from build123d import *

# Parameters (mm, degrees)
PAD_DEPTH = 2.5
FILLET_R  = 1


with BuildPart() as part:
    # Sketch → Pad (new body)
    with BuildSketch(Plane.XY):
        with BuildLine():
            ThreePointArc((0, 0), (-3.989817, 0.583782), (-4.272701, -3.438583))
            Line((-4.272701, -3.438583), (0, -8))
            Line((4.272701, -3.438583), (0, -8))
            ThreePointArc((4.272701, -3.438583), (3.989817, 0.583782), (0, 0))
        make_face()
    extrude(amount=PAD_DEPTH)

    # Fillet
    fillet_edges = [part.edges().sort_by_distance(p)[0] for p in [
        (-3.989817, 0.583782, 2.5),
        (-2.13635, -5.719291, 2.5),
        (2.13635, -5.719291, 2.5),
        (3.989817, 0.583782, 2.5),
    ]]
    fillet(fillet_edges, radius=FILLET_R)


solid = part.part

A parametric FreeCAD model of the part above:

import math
import FreeCAD as App
import Part
import Sketcher


def edges_at(feature, points):
    """Names of the edges that pass closest to the given points."""
    edges = feature.Shape.Edges
    near = lambda p: min(range(len(edges)), key=lambda i: edges[i].distToShape(Part.Vertex(*p))[0])
    return sorted({f"Edge{near(p) + 1}" for p in points})

doc = App.newDocument("Part")
body = doc.addObject("PartDesign::Body", "Body")

sketch1 = doc.addObject("Sketcher::SketchObject", "Sketch")
body.addObject(sketch1)
sketch1.AttachmentSupport = (doc.XY_Plane, [""])
sketch1.MapMode = "FlatFace"
sketch1.addGeometry(Part.ArcOfCircle(Part.Circle(App.Vector(-2.3, -1.6, 0), App.Vector(0, 0, 1), 2.8), math.radians(35), math.radians(223)), False)
sketch1.addGeometry(Part.LineSegment(App.Vector(-4.3, -3.4, 0), App.Vector(0, -8, 0)), False)
sketch1.addGeometry(Part.LineSegment(App.Vector(0, -8, 0), App.Vector(4.3, -3.4, 0)), False)
sketch1.addGeometry(Part.ArcOfCircle(Part.Circle(App.Vector(2.3, -1.6, 0), App.Vector(0, 0, 1), 2.8), math.radians(-43), math.radians(145)), False)
sketch1.addConstraint(Sketcher.Constraint("Coincident", 0, 2, 1, 1))
sketch1.addConstraint(Sketcher.Constraint("Coincident", 1, 2, 2, 1))
sketch1.addConstraint(Sketcher.Constraint("Coincident", 2, 2, 3, 1))
sketch1.addConstraint(Sketcher.Constraint("Coincident", 3, 2, 0, 1))
sketch1.addConstraint(Sketcher.Constraint("Coincident", 3, 2, -1, 1))
sketch1.addConstraint(Sketcher.Constraint("Equal", 0, 3))
sketch1.addConstraint(Sketcher.Constraint("Symmetric", 0, 2, 2, 2, -2))
sketch1.addConstraint(Sketcher.Constraint("PointOnObject", 1, 2, -2))
sketch1.addConstraint(Sketcher.Constraint("Radius", 0, 2.75))
sketch1.addConstraint(Sketcher.Constraint("DistanceY", 1, 2, -1, 1, 8.0))
sketch1.addConstraint(Sketcher.Constraint("Distance", 1, 6.25))
sketch1.addConstraint(Sketcher.Constraint("DistanceX", 0, 2, -1, 1, 4.272701))
pad1 = doc.addObject("PartDesign::Pad", "Pad")
body.addObject(pad1)
pad1.Profile = sketch1
pad1.Length = 2.5
doc.recompute()

fillet = doc.addObject("PartDesign::Fillet", "Fillet")
body.addObject(fillet)
fillet.Base = (pad1, edges_at(pad1, [
    (-3.99, 0.584, 2.5),
    (-2.136, -5.719, 2.5),
    (2.136, -5.719, 2.5),
    (3.99, 0.584, 2.5),
]))
fillet.Radius = 1

doc.recompute()
